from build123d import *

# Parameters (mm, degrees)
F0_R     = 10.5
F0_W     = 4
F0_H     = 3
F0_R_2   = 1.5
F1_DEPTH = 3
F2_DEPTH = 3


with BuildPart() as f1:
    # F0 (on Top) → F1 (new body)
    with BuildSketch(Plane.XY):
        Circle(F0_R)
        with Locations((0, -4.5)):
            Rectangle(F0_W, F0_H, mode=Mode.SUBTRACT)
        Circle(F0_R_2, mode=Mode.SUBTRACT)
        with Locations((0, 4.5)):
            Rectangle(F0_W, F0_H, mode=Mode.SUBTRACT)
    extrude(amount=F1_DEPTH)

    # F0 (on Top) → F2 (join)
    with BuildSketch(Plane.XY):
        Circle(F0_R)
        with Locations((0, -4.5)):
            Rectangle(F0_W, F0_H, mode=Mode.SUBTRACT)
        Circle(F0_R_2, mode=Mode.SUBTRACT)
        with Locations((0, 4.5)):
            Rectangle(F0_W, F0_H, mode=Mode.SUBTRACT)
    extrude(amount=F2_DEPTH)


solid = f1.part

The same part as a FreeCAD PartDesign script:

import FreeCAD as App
import Part
import Sketcher

doc = App.newDocument("Part")
params = doc.addObject("Spreadsheet::Sheet", "Params")
for row, (alias, value) in enumerate([
    ("sketch1_diameter", "21 mm"),
    ("sketch1_diameter2", "3 mm"),
    ("sketch1_width", "4 mm"),
    ("sketch1_height", "3 mm"),
    ("pad1_length", "3 mm"),
    ("sketch2_diameter", "21 mm"),
    ("sketch2_diameter2", "3 mm"),
    ("sketch2_width", "4 mm"),
    ("sketch2_height", "3 mm"),
    ("pad2_length", "3 mm"),
], start=1):
    params.set(f"A{row}", alias)
    params.set(f"B{row}", "=" + value)
    params.setAlias(f"B{row}", alias)

body = doc.addObject("PartDesign::Body", "Body")

# Sketch on XY plane
sketch1 = doc.addObject("Sketcher::SketchObject", "Sketch")
body.addObject(sketch1)
sketch1.AttachmentSupport = (doc.XY_Plane, [""])
sketch1.MapMode = "FlatFace"
sketch1.addGeometry(Part.Circle(App.Vector(0, 0, 0), App.Vector(0, 0, 1), 10.5), False)
sketch1.addGeometry(Part.LineSegment(App.Vector(2, -6, 0), App.Vector(-2, -6, 0)), False)
sketch1.addGeometry(Part.LineSegment(App.Vector(-2, -6, 0), App.Vector(-2, -3, 0)), False)
sketch1.addGeometry(Part.LineSegment(App.Vector(-2, -3, 0), App.Vector(2, -3, 0)), False)
sketch1.addGeometry(Part.LineSegment(App.Vector(2, -3, 0), App.Vector(2, -6, 0)), False)
sketch1.addGeometry(Part.Circle(App.Vector(0, 0, 0), App.Vector(0, 0, 1), 1.5), False)
sketch1.addGeometry(Part.LineSegment(App.Vector(2, 3, 0), App.Vector(-2, 3, 0)), False)
sketch1.addGeometry(Part.LineSegment(App.Vector(-2, 3, 0), App.Vector(-2, 6, 0)), False)
sketch1.addGeometry(Part.LineSegment(App.Vector(-2, 6, 0), App.Vector(2, 6, 0)), False)
sketch1.addGeometry(Part.LineSegment(App.Vector(2, 6, 0), App.Vector(2, 3, 0)), False)
sketch1.addConstraint(Sketcher.Constraint("Coincident", 1, 2, 2, 1))
sketch1.addConstraint(Sketcher.Constraint("Coincident", 2, 2, 3, 1))
sketch1.addConstraint(Sketcher.Constraint("Coincident", 3, 2, 4, 1))
sketch1.addConstraint(Sketcher.Constraint("Coincident", 4, 2, 1, 1))
sketch1.addConstraint(Sketcher.Constraint("Coincident", 6, 2, 7, 1))
sketch1.addConstraint(Sketcher.Constraint("Coincident", 7, 2, 8, 1))
sketch1.addConstraint(Sketcher.Constraint("Coincident", 8, 2, 9, 1))
sketch1.addConstraint(Sketcher.Constraint("Coincident", 9, 2, 6, 1))
sketch1.addConstraint(Sketcher.Constraint("Horizontal", 1))
sketch1.addConstraint(Sketcher.Constraint("Vertical", 2))
sketch1.addConstraint(Sketcher.Constraint("Horizontal", 3))
sketch1.addConstraint(Sketcher.Constraint("Vertical", 4))
sketch1.addConstraint(Sketcher.Constraint("Horizontal", 6))
sketch1.addConstraint(Sketcher.Constraint("Vertical", 7))
sketch1.addConstraint(Sketcher.Constraint("Horizontal", 8))
sketch1.addConstraint(Sketcher.Constraint("Vertical", 9))
sketch1.addConstraint(Sketcher.Constraint("Coincident", 0, 3, -1, 1))
sketch1.addConstraint(Sketcher.Constraint("Coincident", 5, 3, -1, 1))
sketch1.addConstraint(Sketcher.Constraint("Symmetric", 3, 2, 6, 2, -1, 1))
sketch1.addConstraint(Sketcher.Constraint("Symmetric", 1, 2, 8, 2, -1, 1))
sketch1.addConstraint(Sketcher.Constraint("Vertical", 2, 2, 6, 2))
sketch1.addConstraint(Sketcher.Constraint("Diameter", 0, 21.0))
sketch1.addConstraint(Sketcher.Constraint("Diameter", 5, 3.0))
sketch1.addConstraint(Sketcher.Constraint("DistanceX", 1, 2, 1, 1, 4.0))
sketch1.addConstraint(Sketcher.Constraint("DistanceY", 2, 1, 2, 2, 3.0))
sketch1.addConstraint(Sketcher.Constraint("DistanceY", 1, 2, -1, 1, 6.0))
sketch1.setExpression("Constraints[21]", "Params.sketch1_diameter")
sketch1.setExpression("Constraints[22]", "Params.sketch1_diameter2")
sketch1.setExpression("Constraints[23]", "Params.sketch1_width")
sketch1.setExpression("Constraints[24]", "Params.sketch1_height")
pad1 = doc.addObject("PartDesign::Pad", "Pad")
body.addObject(pad1)
pad1.Profile = sketch1
pad1.setExpression("Length", "Params.pad1_length")

# Sketch on XY plane
sketch2 = doc.addObject("Sketcher::SketchObject", "Sketch001")
body.addObject(sketch2)
sketch2.AttachmentSupport = (doc.XY_Plane, [""])
sketch2.MapMode = "FlatFace"
sketch2.addGeometry(Part.Circle(App.Vector(0, 0, 0), App.Vector(0, 0, 1), 10.5), False)
sketch2.addGeometry(Part.LineSegment(App.Vector(2, -6, 0), App.Vector(-2, -6, 0)), False)
sketch2.addGeometry(Part.LineSegment(App.Vector(-2, -6, 0), App.Vector(-2, -3, 0)), False)
sketch2.addGeometry(Part.LineSegment(App.Vector(-2, -3, 0), App.Vector(2, -3, 0)), False)
sketch2.addGeometry(Part.LineSegment(App.Vector(2, -3, 0), App.Vector(2, -6, 0)), False)
sketch2.addGeometry(Part.Circle(App.Vector(0, 0, 0), App.Vector(0, 0, 1), 1.5), False)
sketch2.addGeometry(Part.LineSegment(App.Vector(2, 3, 0), App.Vector(-2, 3, 0)), False)
sketch2.addGeometry(Part.LineSegment(App.Vector(-2, 3, 0), App.Vector(-2, 6, 0)), False)
sketch2.addGeometry(Part.LineSegment(App.Vector(-2, 6, 0), App.Vector(2, 6, 0)), False)
sketch2.addGeometry(Part.LineSegment(App.Vector(2, 6, 0), App.Vector(2, 3, 0)), False)
sketch2.addConstraint(Sketcher.Constraint("Coincident", 1, 2, 2, 1))
sketch2.addConstraint(Sketcher.Constraint("Coincident", 2, 2, 3, 1))
sketch2.addConstraint(Sketcher.Constraint("Coincident", 3, 2, 4, 1))
sketch2.addConstraint(Sketcher.Constraint("Coincident", 4, 2, 1, 1))
sketch2.addConstraint(Sketcher.Constraint("Coincident", 6, 2, 7, 1))
sketch2.addConstraint(Sketcher.Constraint("Coincident", 7, 2, 8, 1))
sketch2.addConstraint(Sketcher.Constraint("Coincident", 8, 2, 9, 1))
sketch2.addConstraint(Sketcher.Constraint("Coincident", 9, 2, 6, 1))
sketch2.addConstraint(Sketcher.Constraint("Horizontal", 1))
sketch2.addConstraint(Sketcher.Constraint("Vertical", 2))
sketch2.addConstraint(Sketcher.Constraint("Horizontal", 3))
sketch2.addConstraint(Sketcher.Constraint("Vertical", 4))
sketch2.addConstraint(Sketcher.Constraint("Horizontal", 6))
sketch2.addConstraint(Sketcher.Constraint("Vertical", 7))
sketch2.addConstraint(Sketcher.Constraint("Horizontal", 8))
sketch2.addConstraint(Sketcher.Constraint("Vertical", 9))
sketch2.addConstraint(Sketcher.Constraint("Coincident", 0, 3, -1, 1))
sketch2.addConstraint(Sketcher.Constraint("Coincident", 5, 3, -1, 1))
sketch2.addConstraint(Sketcher.Constraint("Symmetric", 3, 2, 6, 2, -1, 1))
sketch2.addConstraint(Sketcher.Constraint("Symmetric", 1, 2, 8, 2, -1, 1))
sketch2.addConstraint(Sketcher.Constraint("Vertical", 2, 2, 6, 2))
sketch2.addConstraint(Sketcher.Constraint("Diameter", 0, 21.0))
sketch2.addConstraint(Sketcher.Constraint("Diameter", 5, 3.0))
sketch2.addConstraint(Sketcher.Constraint("DistanceX", 1, 2, 1, 1, 4.0))
sketch2.addConstraint(Sketcher.Constraint("DistanceY", 2, 1, 2, 2, 3.0))
sketch2.addConstraint(Sketcher.Constraint("DistanceY", 1, 2, -1, 1, 6.0))
sketch2.setExpression("Constraints[21]", "Params.sketch2_diameter")
sketch2.setExpression("Constraints[22]", "Params.sketch2_diameter2")
sketch2.setExpression("Constraints[23]", "Params.sketch2_width")
sketch2.setExpression("Constraints[24]", "Params.sketch2_height")
pad2 = doc.addObject("PartDesign::Pad", "Pad001")
body.addObject(pad2)
pad2.Profile = sketch2
pad2.setExpression("Length", "Params.pad2_length")

doc.recompute()
